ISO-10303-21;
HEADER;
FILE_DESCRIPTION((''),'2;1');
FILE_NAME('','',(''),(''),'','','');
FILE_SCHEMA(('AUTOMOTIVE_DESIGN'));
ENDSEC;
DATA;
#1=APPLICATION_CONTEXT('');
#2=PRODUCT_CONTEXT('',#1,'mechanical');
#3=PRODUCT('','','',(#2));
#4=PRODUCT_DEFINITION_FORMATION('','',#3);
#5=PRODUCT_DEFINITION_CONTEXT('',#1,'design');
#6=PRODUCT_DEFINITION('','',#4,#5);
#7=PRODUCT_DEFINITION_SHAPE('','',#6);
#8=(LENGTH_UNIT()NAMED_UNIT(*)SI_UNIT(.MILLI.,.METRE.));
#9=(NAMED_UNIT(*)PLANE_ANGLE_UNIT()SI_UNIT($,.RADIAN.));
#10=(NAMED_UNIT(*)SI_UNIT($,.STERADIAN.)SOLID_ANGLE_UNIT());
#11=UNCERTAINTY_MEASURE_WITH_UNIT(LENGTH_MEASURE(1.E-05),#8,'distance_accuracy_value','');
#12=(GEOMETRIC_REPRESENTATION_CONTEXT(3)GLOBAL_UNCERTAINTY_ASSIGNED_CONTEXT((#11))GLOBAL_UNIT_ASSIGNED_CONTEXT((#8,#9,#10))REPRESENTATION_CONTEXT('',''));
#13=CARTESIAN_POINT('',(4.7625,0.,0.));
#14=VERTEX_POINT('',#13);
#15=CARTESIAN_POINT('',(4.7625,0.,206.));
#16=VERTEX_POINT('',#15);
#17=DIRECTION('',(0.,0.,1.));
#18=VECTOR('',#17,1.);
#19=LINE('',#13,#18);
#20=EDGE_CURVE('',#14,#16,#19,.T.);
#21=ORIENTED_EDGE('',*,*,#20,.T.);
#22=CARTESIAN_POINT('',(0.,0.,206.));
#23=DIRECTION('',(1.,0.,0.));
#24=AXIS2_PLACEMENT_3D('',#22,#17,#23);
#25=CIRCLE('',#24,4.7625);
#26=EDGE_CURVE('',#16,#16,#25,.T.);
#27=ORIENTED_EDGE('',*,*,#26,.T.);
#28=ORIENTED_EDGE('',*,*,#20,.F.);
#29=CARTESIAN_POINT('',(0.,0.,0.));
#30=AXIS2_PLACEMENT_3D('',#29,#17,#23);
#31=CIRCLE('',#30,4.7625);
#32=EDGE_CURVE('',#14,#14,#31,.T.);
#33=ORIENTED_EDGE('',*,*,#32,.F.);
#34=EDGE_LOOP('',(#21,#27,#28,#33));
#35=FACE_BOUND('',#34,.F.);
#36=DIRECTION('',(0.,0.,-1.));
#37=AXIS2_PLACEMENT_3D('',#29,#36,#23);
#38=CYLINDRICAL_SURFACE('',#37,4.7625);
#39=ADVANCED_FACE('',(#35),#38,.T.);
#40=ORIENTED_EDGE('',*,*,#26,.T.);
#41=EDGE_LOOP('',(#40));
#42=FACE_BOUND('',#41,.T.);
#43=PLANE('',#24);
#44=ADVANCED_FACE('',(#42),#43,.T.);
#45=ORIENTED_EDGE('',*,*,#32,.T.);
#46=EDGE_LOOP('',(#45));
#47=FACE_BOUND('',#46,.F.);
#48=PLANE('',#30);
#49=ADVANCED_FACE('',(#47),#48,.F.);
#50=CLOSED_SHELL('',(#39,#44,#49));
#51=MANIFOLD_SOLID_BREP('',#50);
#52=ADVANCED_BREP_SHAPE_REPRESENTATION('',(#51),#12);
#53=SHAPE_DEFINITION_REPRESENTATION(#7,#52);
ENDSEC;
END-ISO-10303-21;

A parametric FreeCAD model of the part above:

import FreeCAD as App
import Part
import Sketcher
Q = App.Units.Quantity

doc = App.newDocument("Part")
body = doc.addObject("PartDesign::Body", "Body")

# Sketch on XY plane
sketch1 = body.newObject("Sketcher::SketchObject", "Sketch")
sketch1.AttachmentSupport = (doc.getObject("XY_Plane"), [""])
sketch1.MapMode = "FlatFace"
sketch1.addGeometry(Part.Circle(App.Vector(0, 0, 0), App.Vector(0, 0, 1), 4.8), False)
sketch1.addConstraint(Sketcher.Constraint("Coincident", 0, 3, -1, 1))
sketch1.addConstraint(Sketcher.Constraint("Diameter", 0, Q("9.525 mm")))
pad1 = body.newObject("PartDesign::Pad", "Pad")
pad1.Profile = sketch1
pad1.Length = 206

doc.recompute()
